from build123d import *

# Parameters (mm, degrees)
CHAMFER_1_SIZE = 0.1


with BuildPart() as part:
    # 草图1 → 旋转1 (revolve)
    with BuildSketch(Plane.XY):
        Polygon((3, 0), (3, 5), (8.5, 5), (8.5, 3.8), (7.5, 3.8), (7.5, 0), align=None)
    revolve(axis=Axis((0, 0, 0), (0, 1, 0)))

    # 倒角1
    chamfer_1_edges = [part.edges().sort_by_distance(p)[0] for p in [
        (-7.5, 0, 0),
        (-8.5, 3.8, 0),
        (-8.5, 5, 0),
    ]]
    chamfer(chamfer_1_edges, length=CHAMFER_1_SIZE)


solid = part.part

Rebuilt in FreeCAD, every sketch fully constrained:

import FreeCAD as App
import Part
import Sketcher
from FreeCAD import Vector


def edges_at(feature, points):
    """Names of the edges that pass closest to the given points."""
    edges = feature.Shape.Edges
    near = lambda p: min(range(len(edges)), key=lambda i: edges[i].distToShape(Part.Vertex(*p))[0])
    return sorted({f"Edge{near(p) + 1}" for p in points})


def add_polygon(sketch, points):
    """Adds a closed chain of lines whose ends are joined by coincident constraints."""
    first, n = sketch.GeometryCount, len(points)
    for a, b in zip(points, points[1:] + points[:1]):
        sketch.addGeometry(Part.LineSegment(App.Vector(*a, 0), App.Vector(*b, 0)), False)
    for i in range(n):
        sketch.addConstraint(Sketcher.Constraint("Coincident", first + i, 2, first + (i + 1) % n, 1))

doc = App.newDocument("Part")
body = doc.addObject("PartDesign::Body", "Body")

sketch1 = doc.addObject("Sketcher::SketchObject", "Sketch")
body.addObject(sketch1)
sketch1.AttachmentSupport = (doc.XY_Plane, [""])
sketch1.MapMode = "FlatFace"
add_polygon(sketch1, [(3, 5), (3, 0), (7.5, 0), (7.5, 3.8), (8.5, 3.8), (8.5, 5)])
sketch1.addConstraint([
    Sketcher.Constraint("Vertical", 0),
    Sketcher.Constraint("Horizontal", 1),
    Sketcher.Constraint("Vertical", 2),
    Sketcher.Constraint("Horizontal", 3),
    Sketcher.Constraint("Vertical", 4),
    Sketcher.Constraint("Horizontal", 5),
    Sketcher.Constraint("PointOnObject", 0, 2, -1),
    Sketcher.Constraint("DistanceX", 3, 1, 3, 2, 1.0),
    Sketcher.Constraint("DistanceY", 0, 2, 0, 1, 5.0),
    Sketcher.Constraint("DistanceX", 1, 1, 1, 2, 4.5),
    Sketcher.Constraint("DistanceY", 2, 1, 2, 2, 3.8),
    Sketcher.Constraint("DistanceX", -1, 1, 0, 2, 3.0),
])
revolution = doc.addObject("PartDesign::Revolution", "Revolution")
body.addObject(revolution)
revolution.Profile = sketch1
revolution.ReferenceAxis = (sketch1, ["V_Axis"])
revolution.Angle = 360
doc.recompute()

chamfer = doc.addObject("PartDesign::Chamfer", "Chamfer")
body.addObject(chamfer)
chamfer.Base = (revolution, edges_at(revolution, [(-7.5, 0, 0), (-8.5, 3.8, 0), (-8.5, 5, 0)]))
chamfer.Size = 0.1

doc.recompute()
